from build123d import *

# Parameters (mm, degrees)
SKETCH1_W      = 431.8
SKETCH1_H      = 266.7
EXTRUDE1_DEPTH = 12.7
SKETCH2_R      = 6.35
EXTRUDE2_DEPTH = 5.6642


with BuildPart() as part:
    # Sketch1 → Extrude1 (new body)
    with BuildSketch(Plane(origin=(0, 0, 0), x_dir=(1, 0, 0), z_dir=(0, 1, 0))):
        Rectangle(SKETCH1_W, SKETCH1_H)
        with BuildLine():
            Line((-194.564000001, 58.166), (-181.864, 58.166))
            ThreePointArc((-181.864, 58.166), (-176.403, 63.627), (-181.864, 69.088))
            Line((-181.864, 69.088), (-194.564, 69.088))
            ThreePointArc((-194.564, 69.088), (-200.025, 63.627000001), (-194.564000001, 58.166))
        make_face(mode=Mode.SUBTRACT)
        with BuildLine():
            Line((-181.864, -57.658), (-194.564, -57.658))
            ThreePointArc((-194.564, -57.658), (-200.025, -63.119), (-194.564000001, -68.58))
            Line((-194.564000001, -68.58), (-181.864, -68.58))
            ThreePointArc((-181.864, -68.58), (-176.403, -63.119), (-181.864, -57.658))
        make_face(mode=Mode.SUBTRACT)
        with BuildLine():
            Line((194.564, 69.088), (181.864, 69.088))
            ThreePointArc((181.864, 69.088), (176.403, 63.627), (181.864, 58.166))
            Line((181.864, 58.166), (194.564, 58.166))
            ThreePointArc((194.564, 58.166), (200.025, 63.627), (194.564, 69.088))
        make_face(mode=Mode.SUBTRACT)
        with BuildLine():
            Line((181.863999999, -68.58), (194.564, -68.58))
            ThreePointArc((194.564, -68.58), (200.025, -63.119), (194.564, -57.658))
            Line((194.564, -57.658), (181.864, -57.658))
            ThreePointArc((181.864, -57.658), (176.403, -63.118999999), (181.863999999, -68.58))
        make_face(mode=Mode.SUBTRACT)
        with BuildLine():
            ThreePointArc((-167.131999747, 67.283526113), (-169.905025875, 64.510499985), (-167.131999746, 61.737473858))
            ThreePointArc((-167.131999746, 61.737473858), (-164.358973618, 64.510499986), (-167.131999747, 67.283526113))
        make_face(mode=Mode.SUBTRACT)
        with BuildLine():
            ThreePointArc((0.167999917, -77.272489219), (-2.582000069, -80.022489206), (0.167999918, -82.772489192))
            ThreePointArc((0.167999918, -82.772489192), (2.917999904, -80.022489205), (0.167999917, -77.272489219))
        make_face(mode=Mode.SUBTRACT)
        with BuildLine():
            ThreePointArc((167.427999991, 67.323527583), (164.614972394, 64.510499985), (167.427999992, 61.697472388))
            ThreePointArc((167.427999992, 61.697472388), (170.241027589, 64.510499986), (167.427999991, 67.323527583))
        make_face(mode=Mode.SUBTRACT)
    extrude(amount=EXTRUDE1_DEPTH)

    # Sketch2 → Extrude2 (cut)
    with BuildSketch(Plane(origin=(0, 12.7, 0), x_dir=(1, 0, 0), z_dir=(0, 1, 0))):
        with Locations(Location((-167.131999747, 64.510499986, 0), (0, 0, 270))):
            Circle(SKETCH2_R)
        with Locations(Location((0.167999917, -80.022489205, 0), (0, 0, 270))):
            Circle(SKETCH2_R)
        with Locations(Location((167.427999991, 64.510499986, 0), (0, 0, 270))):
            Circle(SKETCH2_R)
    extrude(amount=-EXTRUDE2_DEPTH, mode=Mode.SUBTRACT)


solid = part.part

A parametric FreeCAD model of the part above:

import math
import FreeCAD as App
import Part
import Sketcher
Q = App.Units.Quantity


def add_polygon(sketch, points):
    """Adds a closed chain of lines whose ends are joined by coincident constraints."""
    first, n = sketch.GeometryCount, len(points)
    for a, b in zip(points, points[1:] + points[:1]):
        sketch.addGeometry(Part.LineSegment(App.Vector(*a, 0), App.Vector(*b, 0)), False)
    for i in range(n):
        sketch.addConstraint(Sketcher.Constraint("Coincident", first + i, 2, first + (i + 1) % n, 1))

doc = App.newDocument("Part")
body = doc.addObject("PartDesign::Body", "Body")

# Sketch on XZ plane
sketch1 = body.newObject("Sketcher::SketchObject", "Sketch")
sketch1.AttachmentSupport = (doc.getObject("XZ_Plane"), [""])
sketch1.MapMode = "FlatFace"
add_polygon(sketch1, [(-215.9, -133.35), (-215.9, 133.35), (215.9, 133.35), (215.9, -133.35)])  # lines 0-3
sketch1.addGeometry(Part.LineSegment(App.Vector(-194.564, 57.658, 0), App.Vector(-181.864, 57.658, 0)), False)  # 4
sketch1.addGeometry(Part.ArcOfCircle(Part.Circle(App.Vector(-181.864, 63.119, 0), App.Vector(0, 0, 1), 5.461), math.radians(-90), math.radians(90)), False)  # 5
sketch1.addGeometry(Part.LineSegment(App.Vector(-181.864, 68.58, 0), App.Vector(-194.564, 68.58, 0)), False)  # 6
sketch1.addGeometry(Part.ArcOfCircle(Part.Circle(App.Vector(-194.564, 63.119, 0), App.Vector(0, 0, 1), 5.461), math.radians(90), math.radians(270)), False)  # 7
sketch1.addGeometry(Part.Circle(App.Vector(0.168, 80.022489, 0), App.Vector(0, 0, 1), 2.75), False)  # 8
sketch1.addGeometry(Part.LineSegment(App.Vector(194.564, 68.58, 0), App.Vector(181.864, 68.58, 0)), False)  # 9
sketch1.addGeometry(Part.ArcOfCircle(Part.Circle(App.Vector(181.864, 63.119, 0), App.Vector(0, 0, 1), 5.461), math.radians(90), math.radians(270)), False)  # 10
sketch1.addGeometry(Part.LineSegment(App.Vector(181.864, 57.658, 0), App.Vector(194.564, 57.658, 0)), False)  # 11
sketch1.addGeometry(Part.ArcOfCircle(Part.Circle(App.Vector(194.564, 63.119, 0), App.Vector(0, 0, 1), 5.461), math.radians(-90), math.radians(90)), False)  # 12
sketch1.addGeometry(Part.LineSegment(App.Vector(-181.864, -58.166, 0), App.Vector(-194.564, -58.166, 0)), False)  # 13
sketch1.addGeometry(Part.ArcOfCircle(Part.Circle(App.Vector(-194.564, -63.627, 0), App.Vector(0, 0, 1), 5.461), math.radians(90), math.radians(270)), False)  # 14
sketch1.addGeometry(Part.LineSegment(App.Vector(-194.564, -69.088, 0), App.Vector(-181.864, -69.088, 0)), False)  # 15
sketch1.addGeometry(Part.ArcOfCircle(Part.Circle(App.Vector(-181.864, -63.627, 0), App.Vector(0, 0, 1), 5.461), math.radians(-90), math.radians(90)), False)  # 16
sketch1.addGeometry(Part.ArcOfCircle(Part.Circle(App.Vector(-167.132, -64.5105, 0), App.Vector(0, 0, 1), 2.773026), math.radians(90), math.radians(270)), False)  # 17
sketch1.addGeometry(Part.ArcOfCircle(Part.Circle(App.Vector(-167.132, -64.5105, 0), App.Vector(0, 0, 1), 2.773026), math.radians(-90), math.radians(90)), False)  # 18
sketch1.addGeometry(Part.Circle(App.Vector(167.428, -64.5105, 0), App.Vector(0, 0, 1), 2.813028), False)  # 19
sketch1.addGeometry(Part.LineSegment(App.Vector(181.864, -69.088, 0), App.Vector(194.564, -69.088, 0)), False)  # 20
sketch1.addGeometry(Part.ArcOfCircle(Part.Circle(App.Vector(194.564, -63.627, 0), App.Vector(0, 0, 1), 5.461), math.radians(-90), math.radians(90)), False)  # 21
sketch1.addGeometry(Part.LineSegment(App.Vector(194.564, -58.166, 0), App.Vector(181.864, -58.166, 0)), False)  # 22
sketch1.addGeometry(Part.ArcOfCircle(Part.Circle(App.Vector(181.864, -63.627, 0), App.Vector(0, 0, 1), 5.461), math.radians(90), math.radians(270)), False)  # 23
sketch1.addConstraint(Sketcher.Constraint("Tangent", 4, 2, 5, 1))
sketch1.addConstraint(Sketcher.Constraint("Tangent", 5, 2, 6, 1))
sketch1.addConstraint(Sketcher.Constraint("Tangent", 6, 2, 7, 1))
sketch1.addConstraint(Sketcher.Constraint("Tangent", 7, 2, 4, 1))
sketch1.addConstraint(Sketcher.Constraint("Tangent", 9, 2, 10, 1))
sketch1.addConstraint(Sketcher.Constraint("Tangent", 10, 2, 11, 1))
sketch1.addConstraint(Sketcher.Constraint("Tangent", 11, 2, 12, 1))
sketch1.addConstraint(Sketcher.Constraint("Tangent", 12, 2, 9, 1))
sketch1.addConstraint(Sketcher.Constraint("Tangent", 13, 2, 14, 1))
sketch1.addConstraint(Sketcher.Constraint("Tangent", 14, 2, 15, 1))
sketch1.addConstraint(Sketcher.Constraint("Tangent", 15, 2, 16, 1))
sketch1.addConstraint(Sketcher.Constraint("Tangent", 16, 2, 13, 1))
sketch1.addConstraint(Sketcher.Constraint("Tangent", 17, 1, 18, 2))
sketch1.addConstraint(Sketcher.Constraint("Coincident", 18, 1, 17, 2))
sketch1.addConstraint(Sketcher.Constraint("Tangent", 20, 2, 21, 1))
sketch1.addConstraint(Sketcher.Constraint("Tangent", 21, 2, 22, 1))
sketch1.addConstraint(Sketcher.Constraint("Tangent", 22, 2, 23, 1))
sketch1.addConstraint(Sketcher.Constraint("Tangent", 23, 2, 20, 1))
sketch1.addConstraint(Sketcher.Constraint("Vertical", 0))
sketch1.addConstraint(Sketcher.Constraint("Horizontal", 1))
sketch1.addConstraint(Sketcher.Constraint("Vertical", 2))
sketch1.addConstraint(Sketcher.Constraint("Horizontal", 3))
sketch1.addConstraint(Sketcher.Constraint("Horizontal", 4))
sketch1.addConstraint(Sketcher.Constraint("Horizontal", 6))
sketch1.addConstraint(Sketcher.Constraint("Horizontal", 9))
sketch1.addConstraint(Sketcher.Constraint("Horizontal", 11))
sketch1.addConstraint(Sketcher.Constraint("Horizontal", 13))
sketch1.addConstraint(Sketcher.Constraint("Horizontal", 15))
sketch1.addConstraint(Sketcher.Constraint("Horizontal", 20))
sketch1.addConstraint(Sketcher.Constraint("Horizontal", 22))
sketch1.addConstraint(Sketcher.Constraint("Equal", 7, 10))
sketch1.addConstraint(Sketcher.Constraint("Equal", 12, 14))
sketch1.addConstraint(Sketcher.Constraint("Equal", 16, 21))
sketch1.addConstraint(Sketcher.Constraint("Symmetric", 0, 2, 2, 2, -1, 1))
sketch1.addConstraint(Sketcher.Constraint("Symmetric", 5, 3, 10, 3, -2))
sketch1.addConstraint(Sketcher.Constraint("Symmetric", 14, 3, 21, 3, -2))
sketch1.addConstraint(Sketcher.Constraint("Horizontal", 18, 3, 19, 3))
sketch1.addConstraint(Sketcher.Constraint("Vertical", 7, 3, 14, 3))
sketch1.addConstraint(Sketcher.Constraint("Vertical", 5, 3, 16, 3))
sketch1.addConstraint(Sketcher.Constraint("Vertical", 12, 3, 21, 3))
sketch1.addConstraint(Sketcher.Constraint("Vertical", 10, 3, 23, 3))
sketch1.addConstraint(Sketcher.Constraint("Vertical", 18, 3, 17, 1))
sketch1.addConstraint(Sketcher.Constraint("Vertical", 17, 1, 18, 1))
sketch1.addConstraint(Sketcher.Constraint("DistanceX", 1, 1, 1, 2, Q("17 in")))
sketch1.addConstraint(Sketcher.Constraint("DistanceX", 4, 1, 4, 2, Q("0.5 in")))
sketch1.addConstraint(Sketcher.Constraint("DistanceY", 0, 1, 0, 2, Q("10.5 in")))
sketch1.addConstraint(Sketcher.Constraint("Radius", 5, Q("0.215 in")))
sketch1.addConstraint(Sketcher.Constraint("DistanceY", -1, 1, 5, 2, Q("2.7 in")))
sketch1.addConstraint(Sketcher.Constraint("Diameter", 8, Q("5.5 mm")))
sketch1.addConstraint(Sketcher.Constraint("DistanceX", 5, 3, -1, 1, Q("7.16 in")))
sketch1.addConstraint(Sketcher.Constraint("DistanceX", 17, 3, -1, 1, Q("6.58 in")))
sketch1.addConstraint(Sketcher.Constraint("DistanceY", 13, 2, -1, 1, Q("2.29 in")))
sketch1.addConstraint(Sketcher.Constraint("Diameter", 19, Q("5.626055 mm")))
sketch1.addConstraint(Sketcher.Constraint("Radius", 17, Q("2.773026 mm")))
sketch1.addConstraint(Sketcher.Constraint("DistanceX", -1, 1, 8, 3, Q("0.168 mm")))
sketch1.addConstraint(Sketcher.Constraint("DistanceY", 17, 3, -1, 1, Q("64.5105 mm")))
sketch1.addConstraint(Sketcher.Constraint("DistanceX", -1, 1, 19, 3, Q("167.428 mm")))
sketch1.addConstraint(Sketcher.Constraint("DistanceY", -1, 1, 8, 3, Q("80.022489 mm")))
pad1 = body.newObject("PartDesign::Pad", "Pad")
pad1.Profile = sketch1
pad1.Length = Q("0.5 in")
pad1.Reversed = True

# Sketch on XZ plane
sketch2 = body.newObject("Sketcher::SketchObject", "Sketch001")
sketch2.AttachmentSupport = (doc.getObject("XZ_Plane"), [""])
sketch2.MapMode = "FlatFace"
sketch2.AttachmentOffset = App.Placement(App.Vector(0, 0, -0.5 * 25.4), App.Rotation())
sketch2.addGeometry(Part.Circle(App.Vector(-167.132, -64.5105, 0), App.Vector(0, 0, 1), 6.35), False)
sketch2.addGeometry(Part.Circle(App.Vector(0.168, 80.022489, 0), App.Vector(0, 0, 1), 6.35), False)
sketch2.addGeometry(Part.Circle(App.Vector(167.428, -64.5105, 0), App.Vector(0, 0, 1), 6.35), False)
sketch2.addConstraint(Sketcher.Constraint("Equal", 0, 1))
sketch2.addConstraint(Sketcher.Constraint("Equal", 1, 2))
sketch2.addConstraint(Sketcher.Constraint("Horizontal", 0, 3, 2, 3))
sketch2.addConstraint(Sketcher.Constraint("Diameter", 0, Q("0.5 in")))
sketch2.addConstraint(Sketcher.Constraint("DistanceX", 0, 3, -1, 1, Q("6.58 in")))
sketch2.addConstraint(Sketcher.Constraint("DistanceY", 0, 3, -1, 1, Q("64.5105 mm")))
sketch2.addConstraint(Sketcher.Constraint("DistanceX", -1, 1, 1, 3, Q("0.168 mm")))
sketch2.addConstraint(Sketcher.Constraint("DistanceX", -1, 1, 2, 3, Q("167.428 mm")))
sketch2.addConstraint(Sketcher.Constraint("DistanceY", -1, 1, 1, 3, Q("80.022489 mm")))
pocket1 = body.newObject("PartDesign::Pocket", "Pocket")
pocket1.Profile = sketch2
pocket1.Length = Q("0.223 in")
pocket1.Reversed = True

doc.recompute()
